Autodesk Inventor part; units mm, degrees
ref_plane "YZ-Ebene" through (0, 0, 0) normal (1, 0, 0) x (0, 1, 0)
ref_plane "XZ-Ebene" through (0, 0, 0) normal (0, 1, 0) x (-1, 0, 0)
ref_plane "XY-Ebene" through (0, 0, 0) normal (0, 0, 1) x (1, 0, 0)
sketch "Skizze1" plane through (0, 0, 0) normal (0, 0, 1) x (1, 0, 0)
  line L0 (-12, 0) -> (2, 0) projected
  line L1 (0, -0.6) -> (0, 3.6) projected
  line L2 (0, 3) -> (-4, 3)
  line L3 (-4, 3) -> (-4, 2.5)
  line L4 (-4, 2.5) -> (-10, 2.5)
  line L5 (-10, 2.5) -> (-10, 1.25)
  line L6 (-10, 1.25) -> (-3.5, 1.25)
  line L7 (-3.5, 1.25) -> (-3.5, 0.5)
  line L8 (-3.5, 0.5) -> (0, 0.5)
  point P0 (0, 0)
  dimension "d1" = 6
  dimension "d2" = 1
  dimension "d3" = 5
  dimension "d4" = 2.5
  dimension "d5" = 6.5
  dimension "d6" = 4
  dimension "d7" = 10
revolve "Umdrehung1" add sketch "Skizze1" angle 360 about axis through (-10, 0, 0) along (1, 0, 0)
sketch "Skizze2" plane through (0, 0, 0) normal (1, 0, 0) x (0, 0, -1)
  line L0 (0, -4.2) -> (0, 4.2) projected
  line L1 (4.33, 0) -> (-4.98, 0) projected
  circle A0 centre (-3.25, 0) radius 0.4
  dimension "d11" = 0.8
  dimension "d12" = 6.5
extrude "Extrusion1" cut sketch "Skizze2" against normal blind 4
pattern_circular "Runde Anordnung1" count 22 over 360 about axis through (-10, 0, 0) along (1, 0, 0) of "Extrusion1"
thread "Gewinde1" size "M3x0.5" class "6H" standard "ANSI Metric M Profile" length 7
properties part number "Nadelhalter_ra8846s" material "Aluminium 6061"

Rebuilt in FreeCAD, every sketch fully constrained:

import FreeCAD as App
import Part
import Sketcher


def add_polygon(sketch, points):
    """Adds a closed chain of lines whose ends are joined by coincident constraints."""
    first, n = sketch.GeometryCount, len(points)
    for a, b in zip(points, points[1:] + points[:1]):
        sketch.addGeometry(Part.LineSegment(App.Vector(*a, 0), App.Vector(*b, 0)), False)
    for i in range(n):
        sketch.addConstraint(Sketcher.Constraint("Coincident", first + i, 2, first + (i + 1) % n, 1))

doc = App.newDocument("Part")
body = doc.addObject("PartDesign::Body", "Body")

# Sketch on XY plane
sketch1 = body.newObject("Sketcher::SketchObject", "Sketch")
sketch1.AttachmentSupport = (doc.getObject("XY_Plane"), [""])
sketch1.MapMode = "FlatFace"
add_polygon(sketch1, [(-3.5, 0.5), (0, 0.5), (0, 3), (-4, 3), (-4, 2.5), (-10, 2.5), (-10, 1.2), (-3.5, 1.2)])  # lines 0-7
sketch1.addConstraint([
    Sketcher.Constraint("Horizontal", 0),
    Sketcher.Constraint("Vertical", 1),
    Sketcher.Constraint("Horizontal", 2),
    Sketcher.Constraint("Vertical", 3),
    Sketcher.Constraint("Horizontal", 4),
    Sketcher.Constraint("Vertical", 5),
    Sketcher.Constraint("Horizontal", 6),
    Sketcher.Constraint("Vertical", 7),
    Sketcher.Constraint("PointOnObject", 0, 2, -2),
    Sketcher.Constraint("DistanceX", 2, 2, 2, 1, 4.0),
    Sketcher.Constraint("DistanceX", 4, 2, 4, 1, 6.0),
    Sketcher.Constraint("DistanceX", 6, 1, 6, 2, 6.5),
    Sketcher.Constraint("DistanceY", 1, 1, 1, 2, 2.5),
    Sketcher.Constraint("DistanceY", -1, 1, 3, 2, 2.5),
    Sketcher.Constraint("DistanceY", 3, 2, 3, 1, 0.5),
    Sketcher.Constraint("DistanceY", 5, 2, 5, 1, 1.25),
])
revolution = body.newObject("PartDesign::Revolution", "Revolution")
revolution.Profile = sketch1
revolution.ReferenceAxis = (sketch1, ["H_Axis"])
revolution.Angle = 360

# Sketch on YZ plane
sketch2 = body.newObject("Sketcher::SketchObject", "Sketch001")
sketch2.AttachmentSupport = (doc.getObject("YZ_Plane"), [""])
sketch2.MapMode = "FlatFace"
sketch2.addGeometry(Part.Circle(App.Vector(0, 3.25, 0), App.Vector(0, 0, 1), 0.4), False)
sketch2.addConstraint([
    Sketcher.Constraint("PointOnObject", 0, 3, -2),
    Sketcher.Constraint("Diameter", 0, 0.8),
    Sketcher.Constraint("DistanceY", -1, 1, 0, 3, 3.25),
])
pocket1 = body.newObject("PartDesign::Pocket", "Pocket")
pocket1.Profile = sketch2
pocket1.Length = 4
doc.recompute()

polarpattern = body.newObject("PartDesign::PolarPattern", "PolarPattern")
polarpattern.Originals = [pocket1]
polarpattern.Axis = (doc.getObject("X_Axis"), [""])
polarpattern.Angle = 360
polarpattern.Occurrences = 22
body.Tip = polarpattern

doc.recompute()
